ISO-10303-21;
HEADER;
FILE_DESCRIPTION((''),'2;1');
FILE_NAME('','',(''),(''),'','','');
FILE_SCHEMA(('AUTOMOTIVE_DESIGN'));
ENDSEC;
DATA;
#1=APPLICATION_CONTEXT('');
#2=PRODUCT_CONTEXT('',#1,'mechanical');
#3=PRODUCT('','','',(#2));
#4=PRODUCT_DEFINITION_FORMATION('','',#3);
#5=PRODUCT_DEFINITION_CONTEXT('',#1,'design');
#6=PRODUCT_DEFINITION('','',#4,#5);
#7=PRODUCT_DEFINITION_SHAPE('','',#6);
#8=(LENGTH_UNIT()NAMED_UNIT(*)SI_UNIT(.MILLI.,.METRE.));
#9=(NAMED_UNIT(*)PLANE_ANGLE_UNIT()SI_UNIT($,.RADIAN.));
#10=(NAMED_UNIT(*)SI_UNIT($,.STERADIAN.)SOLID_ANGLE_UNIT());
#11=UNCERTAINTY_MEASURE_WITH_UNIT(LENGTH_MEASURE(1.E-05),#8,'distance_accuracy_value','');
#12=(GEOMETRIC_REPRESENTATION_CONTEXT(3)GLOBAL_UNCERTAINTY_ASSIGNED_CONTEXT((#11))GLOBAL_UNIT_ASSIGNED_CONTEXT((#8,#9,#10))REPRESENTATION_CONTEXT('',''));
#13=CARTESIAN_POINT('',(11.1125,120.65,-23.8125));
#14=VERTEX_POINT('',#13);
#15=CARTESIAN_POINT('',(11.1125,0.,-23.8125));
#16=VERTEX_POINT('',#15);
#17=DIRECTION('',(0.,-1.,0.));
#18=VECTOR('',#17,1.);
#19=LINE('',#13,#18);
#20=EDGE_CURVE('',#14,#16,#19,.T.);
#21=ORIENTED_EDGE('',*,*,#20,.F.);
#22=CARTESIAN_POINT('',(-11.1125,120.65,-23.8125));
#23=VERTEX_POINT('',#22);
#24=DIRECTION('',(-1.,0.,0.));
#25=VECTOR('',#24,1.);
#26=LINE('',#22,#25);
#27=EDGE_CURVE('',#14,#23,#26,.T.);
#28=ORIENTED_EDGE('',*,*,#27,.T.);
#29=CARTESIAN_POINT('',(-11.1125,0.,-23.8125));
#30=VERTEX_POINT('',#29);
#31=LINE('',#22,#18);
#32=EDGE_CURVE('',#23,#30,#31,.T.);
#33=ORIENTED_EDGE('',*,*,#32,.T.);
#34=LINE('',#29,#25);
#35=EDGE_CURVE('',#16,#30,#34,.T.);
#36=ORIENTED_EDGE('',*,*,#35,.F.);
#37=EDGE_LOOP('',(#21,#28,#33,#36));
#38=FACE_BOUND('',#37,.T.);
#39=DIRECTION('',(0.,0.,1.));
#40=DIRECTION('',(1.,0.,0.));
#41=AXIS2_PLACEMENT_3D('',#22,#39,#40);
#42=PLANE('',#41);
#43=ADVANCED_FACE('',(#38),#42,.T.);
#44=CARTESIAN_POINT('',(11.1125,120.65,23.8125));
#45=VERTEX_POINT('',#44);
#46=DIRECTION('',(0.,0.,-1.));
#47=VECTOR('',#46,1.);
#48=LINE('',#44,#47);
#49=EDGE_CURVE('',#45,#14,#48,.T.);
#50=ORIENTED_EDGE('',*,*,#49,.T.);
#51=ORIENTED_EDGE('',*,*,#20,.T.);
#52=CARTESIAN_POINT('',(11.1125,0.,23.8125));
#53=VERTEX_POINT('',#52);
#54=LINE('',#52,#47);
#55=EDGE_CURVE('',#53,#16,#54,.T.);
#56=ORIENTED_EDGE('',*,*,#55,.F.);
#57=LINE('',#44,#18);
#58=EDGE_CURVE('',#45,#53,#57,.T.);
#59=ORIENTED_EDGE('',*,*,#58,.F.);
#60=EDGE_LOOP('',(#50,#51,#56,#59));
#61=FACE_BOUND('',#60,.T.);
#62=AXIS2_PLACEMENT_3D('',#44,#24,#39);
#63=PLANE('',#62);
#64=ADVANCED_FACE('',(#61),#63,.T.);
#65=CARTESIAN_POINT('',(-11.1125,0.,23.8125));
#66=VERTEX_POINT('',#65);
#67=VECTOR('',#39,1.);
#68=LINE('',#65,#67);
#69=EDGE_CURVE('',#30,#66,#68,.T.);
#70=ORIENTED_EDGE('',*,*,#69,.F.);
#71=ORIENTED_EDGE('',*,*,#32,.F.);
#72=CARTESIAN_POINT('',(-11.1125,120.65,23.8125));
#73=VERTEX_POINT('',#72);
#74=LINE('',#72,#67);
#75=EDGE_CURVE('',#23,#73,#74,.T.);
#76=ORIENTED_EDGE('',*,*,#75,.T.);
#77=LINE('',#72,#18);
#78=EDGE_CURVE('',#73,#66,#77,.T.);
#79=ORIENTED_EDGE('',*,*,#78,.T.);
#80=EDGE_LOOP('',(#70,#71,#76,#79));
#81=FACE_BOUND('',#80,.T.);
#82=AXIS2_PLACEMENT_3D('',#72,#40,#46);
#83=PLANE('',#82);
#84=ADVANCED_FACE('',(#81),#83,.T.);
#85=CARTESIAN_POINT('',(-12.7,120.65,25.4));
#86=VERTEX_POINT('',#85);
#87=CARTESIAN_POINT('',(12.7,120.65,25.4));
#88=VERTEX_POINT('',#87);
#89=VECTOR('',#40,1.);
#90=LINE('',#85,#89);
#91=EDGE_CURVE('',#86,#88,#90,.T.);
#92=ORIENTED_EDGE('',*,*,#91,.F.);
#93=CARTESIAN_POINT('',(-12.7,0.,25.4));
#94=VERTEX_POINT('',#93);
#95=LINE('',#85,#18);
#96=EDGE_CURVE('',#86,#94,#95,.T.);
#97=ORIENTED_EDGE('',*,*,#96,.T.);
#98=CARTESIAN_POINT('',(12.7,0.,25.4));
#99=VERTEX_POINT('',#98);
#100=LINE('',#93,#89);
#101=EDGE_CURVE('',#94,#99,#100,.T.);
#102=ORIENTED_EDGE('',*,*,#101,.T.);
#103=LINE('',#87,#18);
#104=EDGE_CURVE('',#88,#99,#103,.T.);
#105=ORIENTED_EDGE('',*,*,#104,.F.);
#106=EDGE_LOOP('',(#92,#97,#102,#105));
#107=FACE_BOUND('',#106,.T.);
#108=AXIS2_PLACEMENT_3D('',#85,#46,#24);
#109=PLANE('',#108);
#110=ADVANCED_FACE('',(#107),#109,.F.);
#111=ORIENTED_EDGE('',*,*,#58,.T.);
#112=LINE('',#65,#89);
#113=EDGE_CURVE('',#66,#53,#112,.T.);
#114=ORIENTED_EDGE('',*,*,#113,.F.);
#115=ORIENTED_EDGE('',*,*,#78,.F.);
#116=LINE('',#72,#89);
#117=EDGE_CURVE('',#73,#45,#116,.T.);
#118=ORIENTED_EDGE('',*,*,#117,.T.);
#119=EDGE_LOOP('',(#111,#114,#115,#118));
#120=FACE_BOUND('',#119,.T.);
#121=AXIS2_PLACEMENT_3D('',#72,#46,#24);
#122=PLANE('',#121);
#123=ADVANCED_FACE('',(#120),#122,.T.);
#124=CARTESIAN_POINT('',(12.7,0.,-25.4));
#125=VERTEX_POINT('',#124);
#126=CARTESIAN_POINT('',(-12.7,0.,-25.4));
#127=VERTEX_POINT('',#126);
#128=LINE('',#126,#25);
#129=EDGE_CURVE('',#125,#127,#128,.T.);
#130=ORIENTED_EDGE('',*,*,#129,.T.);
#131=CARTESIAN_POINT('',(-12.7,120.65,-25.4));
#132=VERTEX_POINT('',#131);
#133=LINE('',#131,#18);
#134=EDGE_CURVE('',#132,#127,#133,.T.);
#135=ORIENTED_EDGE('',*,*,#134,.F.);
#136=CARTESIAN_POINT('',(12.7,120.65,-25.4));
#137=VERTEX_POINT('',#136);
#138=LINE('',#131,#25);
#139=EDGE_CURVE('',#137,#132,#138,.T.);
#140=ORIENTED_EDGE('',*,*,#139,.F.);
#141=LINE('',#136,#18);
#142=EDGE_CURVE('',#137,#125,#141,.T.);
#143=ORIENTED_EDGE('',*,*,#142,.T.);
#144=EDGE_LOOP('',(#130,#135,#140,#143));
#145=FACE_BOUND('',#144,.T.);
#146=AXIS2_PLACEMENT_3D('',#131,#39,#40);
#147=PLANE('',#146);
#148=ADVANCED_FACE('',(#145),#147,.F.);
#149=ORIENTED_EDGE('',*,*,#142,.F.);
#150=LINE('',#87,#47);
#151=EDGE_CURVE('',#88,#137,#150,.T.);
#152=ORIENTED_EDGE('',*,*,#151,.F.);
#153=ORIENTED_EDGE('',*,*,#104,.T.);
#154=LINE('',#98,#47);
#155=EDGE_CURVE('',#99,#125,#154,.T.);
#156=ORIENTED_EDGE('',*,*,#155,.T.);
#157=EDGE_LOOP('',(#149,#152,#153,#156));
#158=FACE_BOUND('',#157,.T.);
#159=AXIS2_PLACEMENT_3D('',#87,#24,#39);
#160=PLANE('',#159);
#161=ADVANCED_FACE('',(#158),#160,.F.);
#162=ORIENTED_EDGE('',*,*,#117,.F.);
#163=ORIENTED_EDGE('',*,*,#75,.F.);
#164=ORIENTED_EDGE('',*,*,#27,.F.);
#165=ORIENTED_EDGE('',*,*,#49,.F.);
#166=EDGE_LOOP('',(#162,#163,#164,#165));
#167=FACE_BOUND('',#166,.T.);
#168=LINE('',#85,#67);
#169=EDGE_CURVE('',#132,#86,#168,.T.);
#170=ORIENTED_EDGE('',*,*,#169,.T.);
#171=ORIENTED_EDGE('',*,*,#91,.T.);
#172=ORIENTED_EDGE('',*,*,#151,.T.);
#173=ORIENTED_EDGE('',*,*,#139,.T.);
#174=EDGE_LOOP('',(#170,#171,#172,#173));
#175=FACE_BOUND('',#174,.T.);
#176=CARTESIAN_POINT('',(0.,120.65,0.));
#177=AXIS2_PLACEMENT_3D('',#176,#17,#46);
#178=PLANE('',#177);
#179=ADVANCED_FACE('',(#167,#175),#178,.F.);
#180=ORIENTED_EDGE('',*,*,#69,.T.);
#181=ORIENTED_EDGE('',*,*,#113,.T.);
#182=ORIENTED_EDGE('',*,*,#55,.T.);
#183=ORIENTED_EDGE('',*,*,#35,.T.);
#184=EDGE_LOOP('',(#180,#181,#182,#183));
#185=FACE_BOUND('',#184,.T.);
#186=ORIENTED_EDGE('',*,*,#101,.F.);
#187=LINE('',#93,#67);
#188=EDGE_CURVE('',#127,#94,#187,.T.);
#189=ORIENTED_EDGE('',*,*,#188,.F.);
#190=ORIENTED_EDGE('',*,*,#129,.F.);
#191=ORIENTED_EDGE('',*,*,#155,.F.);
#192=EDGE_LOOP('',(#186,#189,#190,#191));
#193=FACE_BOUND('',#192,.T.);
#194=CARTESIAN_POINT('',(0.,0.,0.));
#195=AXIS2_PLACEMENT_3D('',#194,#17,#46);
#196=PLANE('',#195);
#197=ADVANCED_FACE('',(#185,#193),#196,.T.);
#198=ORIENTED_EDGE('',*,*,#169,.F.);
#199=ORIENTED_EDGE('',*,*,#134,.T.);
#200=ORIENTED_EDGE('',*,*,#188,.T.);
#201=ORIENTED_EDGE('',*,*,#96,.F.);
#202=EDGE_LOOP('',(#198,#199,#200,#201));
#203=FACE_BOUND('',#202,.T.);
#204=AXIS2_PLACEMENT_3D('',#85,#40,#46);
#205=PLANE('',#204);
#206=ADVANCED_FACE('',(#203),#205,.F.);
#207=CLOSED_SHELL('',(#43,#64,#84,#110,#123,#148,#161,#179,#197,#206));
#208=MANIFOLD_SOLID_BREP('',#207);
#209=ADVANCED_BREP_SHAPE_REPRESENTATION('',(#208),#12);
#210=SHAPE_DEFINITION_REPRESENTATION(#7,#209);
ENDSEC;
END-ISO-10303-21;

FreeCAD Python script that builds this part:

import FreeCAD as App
import Part
import Sketcher
from FreeCAD import Vector
Q = App.Units.Quantity


def add_polygon(sketch, points):
    """Adds a closed chain of lines whose ends are joined by coincident constraints."""
    first, n = sketch.GeometryCount, len(points)
    for a, b in zip(points, points[1:] + points[:1]):
        sketch.addGeometry(Part.LineSegment(App.Vector(*a, 0), App.Vector(*b, 0)), False)
    for i in range(n):
        sketch.addConstraint(Sketcher.Constraint("Coincident", first + i, 2, first + (i + 1) % n, 1))

doc = App.newDocument("Part")
params = doc.addObject("Spreadsheet::Sheet", "Params")
for row, (alias, value) in enumerate([
    ("sketch1_width", "1 in"),
    ("sketch1_height", "2 in"),
    ("sketch1_width2", "0.875 in"),
    ("sketch1_height2", "1.875 in"),
    ("pad1_length", "4.75 in"),
], start=1):
    params.set(f"A{row}", alias)
    params.set(f"B{row}", "=" + value)
    params.setAlias(f"B{row}", alias)

body = doc.addObject("PartDesign::Body", "Body")

sketch1 = body.newObject("Sketcher::SketchObject", "Sketch")
sketch1.AttachmentSupport = (doc.getObject("XZ_Plane"), [""])
sketch1.MapMode = "FlatFace"
add_polygon(sketch1, [(-13, -25), (-13, 25), (13, 25), (13, -25)])
add_polygon(sketch1, [(11, 24), (-11, 24), (-11, -24), (11, -24)])
sketch1.addConstraint([
    Sketcher.Constraint("Vertical", 0),
    Sketcher.Constraint("Horizontal", 1),
    Sketcher.Constraint("Vertical", 2),
    Sketcher.Constraint("Horizontal", 3),
    Sketcher.Constraint("Horizontal", 4),
    Sketcher.Constraint("Vertical", 5),
    Sketcher.Constraint("Horizontal", 6),
    Sketcher.Constraint("Vertical", 7),
    Sketcher.Constraint("Symmetric", 0, 2, 2, 2, -1, 1),
    Sketcher.Constraint("Symmetric", 4, 2, 6, 2, -1, 1),
    Sketcher.Constraint("DistanceX", 1, 1, 1, 2, Q("1 in")),
    Sketcher.Constraint("DistanceY", 0, 1, 0, 2, Q("2 in")),
    Sketcher.Constraint("DistanceX", 4, 2, 4, 1, Q("0.875 in")),
    Sketcher.Constraint("DistanceY", 5, 2, 5, 1, Q("1.875 in")),
])
sketch1.setExpression("Constraints[18]", "Params.sketch1_width")
sketch1.setExpression("Constraints[19]", "Params.sketch1_height")
sketch1.setExpression("Constraints[20]", "Params.sketch1_width2")
sketch1.setExpression("Constraints[21]", "Params.sketch1_height2")
pad1 = body.newObject("PartDesign::Pad", "Pad")
pad1.Profile = sketch1
pad1.setExpression("Length", "Params.pad1_length")
pad1.Reversed = True

doc.recompute()
